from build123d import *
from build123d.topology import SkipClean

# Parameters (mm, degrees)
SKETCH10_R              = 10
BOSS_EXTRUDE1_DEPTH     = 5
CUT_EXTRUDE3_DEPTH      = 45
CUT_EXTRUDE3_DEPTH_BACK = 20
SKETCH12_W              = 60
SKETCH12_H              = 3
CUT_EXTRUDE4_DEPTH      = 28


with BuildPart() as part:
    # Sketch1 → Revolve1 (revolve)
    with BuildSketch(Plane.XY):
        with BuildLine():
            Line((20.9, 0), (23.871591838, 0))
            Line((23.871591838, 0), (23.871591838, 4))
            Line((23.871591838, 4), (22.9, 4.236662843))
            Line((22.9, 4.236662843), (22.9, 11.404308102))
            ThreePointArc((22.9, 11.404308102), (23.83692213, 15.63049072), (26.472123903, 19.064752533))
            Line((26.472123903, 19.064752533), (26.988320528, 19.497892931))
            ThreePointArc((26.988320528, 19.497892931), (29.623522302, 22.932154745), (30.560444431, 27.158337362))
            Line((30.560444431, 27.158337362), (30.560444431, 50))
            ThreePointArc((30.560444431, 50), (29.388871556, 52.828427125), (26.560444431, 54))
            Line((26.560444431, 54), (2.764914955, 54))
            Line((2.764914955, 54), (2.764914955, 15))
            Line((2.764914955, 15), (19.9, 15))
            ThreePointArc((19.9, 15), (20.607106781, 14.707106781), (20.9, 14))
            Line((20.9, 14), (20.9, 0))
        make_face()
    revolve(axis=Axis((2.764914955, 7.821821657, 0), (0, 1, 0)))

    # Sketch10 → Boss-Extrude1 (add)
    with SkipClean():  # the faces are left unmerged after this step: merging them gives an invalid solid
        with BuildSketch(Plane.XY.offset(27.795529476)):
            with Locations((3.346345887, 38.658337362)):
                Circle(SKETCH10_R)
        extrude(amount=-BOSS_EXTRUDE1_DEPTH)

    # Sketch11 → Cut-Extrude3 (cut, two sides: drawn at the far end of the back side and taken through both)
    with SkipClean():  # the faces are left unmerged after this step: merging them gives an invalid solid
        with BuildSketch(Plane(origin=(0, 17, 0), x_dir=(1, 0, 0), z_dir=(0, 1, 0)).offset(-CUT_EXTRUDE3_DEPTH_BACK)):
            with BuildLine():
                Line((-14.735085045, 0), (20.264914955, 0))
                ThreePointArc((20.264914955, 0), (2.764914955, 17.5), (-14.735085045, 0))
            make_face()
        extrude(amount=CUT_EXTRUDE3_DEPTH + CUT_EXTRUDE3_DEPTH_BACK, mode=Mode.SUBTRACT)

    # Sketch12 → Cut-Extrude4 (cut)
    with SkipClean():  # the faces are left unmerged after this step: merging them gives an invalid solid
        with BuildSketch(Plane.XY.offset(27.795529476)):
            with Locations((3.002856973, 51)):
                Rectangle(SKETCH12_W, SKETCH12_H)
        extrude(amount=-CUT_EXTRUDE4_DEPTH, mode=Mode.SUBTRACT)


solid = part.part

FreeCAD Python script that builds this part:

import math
import FreeCAD as App
import Part
import Sketcher

V = App.Vector
Q = App.Units.Quantity


def add_polygon(sketch, points):
    """Adds a closed chain of lines whose ends are joined by coincident constraints."""
    first, n = sketch.GeometryCount, len(points)
    for a, b in zip(points, points[1:] + points[:1]):
        sketch.addGeometry(Part.LineSegment(App.Vector(*a, 0), App.Vector(*b, 0)), False)
    for i in range(n):
        sketch.addConstraint(Sketcher.Constraint("Coincident", first + i, 2, first + (i + 1) % n, 1))

doc = App.newDocument("Part")
body = doc.addObject("PartDesign::Body", "Body")

# Sketch on XY plane
sketch1 = doc.addObject("Sketcher::SketchObject", "Sketch")
body.addObject(sketch1)
sketch1.AttachmentSupport = (doc.XY_Plane, [""])
sketch1.MapMode = "FlatFace"
sketch1.addGeometry([
    Part.LineSegment(V(20.9, 0, 0), V(23.9, 0, 0)),  # 0
    Part.LineSegment(V(23.9, 0, 0), V(23.9, 4, 0)),  # 1
    Part.LineSegment(V(23.9, 4, 0), V(22.9, 4.2, 0)),  # 2
    Part.LineSegment(V(22.9, 4.2, 0), V(22.9, 11.4, 0)),  # 3
    Part.ArcOfCircle(Part.Circle(V(32.9, 11.4, 0), V(0, 0, 1), 10), math.radians(130), math.radians(180)),  # 4
    Part.LineSegment(V(26.5, 19.1, 0), V(27, 19.5, 0)),  # 5
    Part.ArcOfCircle(Part.Circle(V(20.6, 27.2, 0), V(0, 0, 1), 10), math.radians(-50), math.radians(0)),  # 6
    Part.LineSegment(V(30.6, 27.2, 0), V(30.6, 50, 0)),  # 7
    Part.ArcOfCircle(Part.Circle(V(26.6, 50, 0), V(0, 0, 1), 4), math.radians(0), math.radians(90)),  # 8
    Part.LineSegment(V(26.6, 54, 0), V(2.8, 54, 0)),  # 9
    Part.LineSegment(V(2.8, 54, 0), V(2.8, 15, 0)),  # 10
    Part.LineSegment(V(2.8, 15, 0), V(19.9, 15, 0)),  # 11
    Part.ArcOfCircle(Part.Circle(V(19.9, 14, 0), V(0, 0, 1), 1), math.radians(0), math.radians(90)),  # 12
    Part.LineSegment(V(20.9, 14, 0), V(20.9, 0, 0)),  # 13
], False)
sketch1.addGeometry(Part.LineSegment(V(2.8, 0, 0), V(2.8, 54, 0)), True)  # axis
sketch1.addConstraint([
    Sketcher.Constraint("Coincident", 0, 2, 1, 1),
    Sketcher.Constraint("Coincident", 1, 2, 2, 1),
    Sketcher.Constraint("Coincident", 2, 2, 3, 1),
    Sketcher.Constraint("Tangent", 3, 2, 4, 2),
    Sketcher.Constraint("Tangent", 4, 1, 5, 1),
    Sketcher.Constraint("Tangent", 5, 2, 6, 1),
    Sketcher.Constraint("Tangent", 6, 2, 7, 1),
    Sketcher.Constraint("Tangent", 7, 2, 8, 1),
    Sketcher.Constraint("Tangent", 8, 2, 9, 1),
    Sketcher.Constraint("Coincident", 9, 2, 10, 1),
    Sketcher.Constraint("Coincident", 10, 2, 11, 1),
    Sketcher.Constraint("Tangent", 11, 2, 12, 2),
    Sketcher.Constraint("Tangent", 12, 1, 13, 1),
    Sketcher.Constraint("Coincident", 13, 2, 0, 1),
    Sketcher.Constraint("Horizontal", 0),
    Sketcher.Constraint("Vertical", 1),
    Sketcher.Constraint("Vertical", 3),
    Sketcher.Constraint("Vertical", 7),
    Sketcher.Constraint("Horizontal", 9),
    Sketcher.Constraint("Vertical", 10),
    Sketcher.Constraint("Horizontal", 11),
    Sketcher.Constraint("Vertical", 13),
    Sketcher.Constraint("Vertical", 14),
    Sketcher.Constraint("Coincident", 14, 2, 9, 2),
    Sketcher.Constraint("Equal", 4, 6),
    Sketcher.Constraint("PointOnObject", 0, 2, -1),
    Sketcher.Constraint("PointOnObject", 14, 1, -1),
    Sketcher.Constraint("Radius", 4, 10.0),
    Sketcher.Constraint("Radius", 8, 4.0),
    Sketcher.Constraint("Radius", 12, 1.0),
    Sketcher.Constraint("DistanceY", 1, 1, 1, 2, 4.0),
    Sketcher.Constraint("DistanceY", 10, 2, 10, 1, 39.0),
    Sketcher.Constraint("DistanceY", 13, 2, 13, 1, 14.0),
    Sketcher.Constraint("Angle", 5, Q("40 deg")),
    Sketcher.Constraint("Distance", 2, 1.0),
    Sketcher.Constraint("DistanceX", 12, 3, 4, 3, 13.0),
    Sketcher.Constraint("DistanceX", -1, 1, 4, 3, 32.9),
    Sketcher.Constraint("DistanceX", 0, 1, 0, 2, 2.971592),
    Sketcher.Constraint("DistanceX", 9, 2, 9, 1, 23.795529),
    Sketcher.Constraint("DistanceX", 11, 1, 11, 2, 17.135085),
    Sketcher.Constraint("DistanceY", 3, 1, 3, 2, 7.167645),
])
revolution = doc.addObject("PartDesign::Revolution", "Revolution")
body.addObject(revolution)
revolution.Profile = sketch1
revolution.ReferenceAxis = (sketch1, ["Axis0"])
revolution.Angle = 360

# Sketch on XY plane
sketch2 = doc.addObject("Sketcher::SketchObject", "Sketch001")
body.addObject(sketch2)
sketch2.AttachmentSupport = (doc.XY_Plane, [""])
sketch2.MapMode = "FlatFace"
sketch2.AttachmentOffset = App.Placement(V(0, 0, 27.795529), App.Rotation())
sketch2.addGeometry(Part.Circle(V(3, 39, 0), V(0, 0, 1), 10), False)
sketch2.addConstraint([
    Sketcher.Constraint("Diameter", 0, 20.0),
    Sketcher.Constraint("DistanceX", -1, 1, 0, 3, 3.346346),
    Sketcher.Constraint("DistanceY", -1, 1, 0, 3, 38.658337),
])
pad1 = doc.addObject("PartDesign::Pad", "Pad")
body.addObject(pad1)
pad1.Profile = sketch2
pad1.Length = 5
pad1.Reversed = True

# Sketch on XZ plane
sketch3 = doc.addObject("Sketcher::SketchObject", "Sketch002")
body.addObject(sketch3)
sketch3.AttachmentSupport = (doc.XZ_Plane, [""])
sketch3.MapMode = "FlatFace"
sketch3.AttachmentOffset = App.Placement(V(0, 0, -17), App.Rotation())
sketch3.addGeometry([
    Part.LineSegment(V(-15, 0, 0), V(20, 0, 0)),
    Part.ArcOfCircle(Part.Circle(V(3, 0, 0), V(0, 0, 1), 18), math.radians(180), math.radians(360)),
], False)
sketch3.addConstraint([
    Sketcher.Constraint("Coincident", 0, 1, 1, 1),
    Sketcher.Constraint("Coincident", 1, 2, 0, 2),
    Sketcher.Constraint("Horizontal", 0),
    Sketcher.Constraint("PointOnObject", 1, 3, -1),
    Sketcher.Constraint("PointOnObject", 0, 1, -1),
    Sketcher.Constraint("Radius", 1, 17.5),
    Sketcher.Constraint("DistanceX", -1, 1, 1, 3, 2.764915),
])
pocket1 = doc.addObject("PartDesign::Pocket", "Pocket")
body.addObject(pocket1)
pocket1.Profile = sketch3
pocket1.Type = "ThroughAll"
pocket1.Midplane = True

# Sketch on XY plane
sketch4 = doc.addObject("Sketcher::SketchObject", "Sketch003")
body.addObject(sketch4)
sketch4.AttachmentSupport = (doc.XY_Plane, [""])
sketch4.MapMode = "FlatFace"
sketch4.AttachmentOffset = App.Placement(V(0, 0, 27.795529), App.Rotation())
add_polygon(sketch4, [(-27, 52.5), (-27, 49.5), (33, 49.5), (33, 52.5)])  # lines 0-3
sketch4.addConstraint([
    Sketcher.Constraint("Vertical", 0),
    Sketcher.Constraint("Horizontal", 1),
    Sketcher.Constraint("Vertical", 2),
    Sketcher.Constraint("Horizontal", 3),
    Sketcher.Constraint("DistanceX", 1, 1, 1, 2, 60.0),
    Sketcher.Constraint("DistanceY", 0, 2, 0, 1, 3.0),
    Sketcher.Constraint("DistanceY", -1, 1, 0, 2, 49.5),
    Sketcher.Constraint("DistanceX", 0, 2, -1, 1, 26.997143),
])
pocket2 = doc.addObject("PartDesign::Pocket", "Pocket001")
body.addObject(pocket2)
pocket2.Profile = sketch4
pocket2.Length = 28

doc.recompute()
